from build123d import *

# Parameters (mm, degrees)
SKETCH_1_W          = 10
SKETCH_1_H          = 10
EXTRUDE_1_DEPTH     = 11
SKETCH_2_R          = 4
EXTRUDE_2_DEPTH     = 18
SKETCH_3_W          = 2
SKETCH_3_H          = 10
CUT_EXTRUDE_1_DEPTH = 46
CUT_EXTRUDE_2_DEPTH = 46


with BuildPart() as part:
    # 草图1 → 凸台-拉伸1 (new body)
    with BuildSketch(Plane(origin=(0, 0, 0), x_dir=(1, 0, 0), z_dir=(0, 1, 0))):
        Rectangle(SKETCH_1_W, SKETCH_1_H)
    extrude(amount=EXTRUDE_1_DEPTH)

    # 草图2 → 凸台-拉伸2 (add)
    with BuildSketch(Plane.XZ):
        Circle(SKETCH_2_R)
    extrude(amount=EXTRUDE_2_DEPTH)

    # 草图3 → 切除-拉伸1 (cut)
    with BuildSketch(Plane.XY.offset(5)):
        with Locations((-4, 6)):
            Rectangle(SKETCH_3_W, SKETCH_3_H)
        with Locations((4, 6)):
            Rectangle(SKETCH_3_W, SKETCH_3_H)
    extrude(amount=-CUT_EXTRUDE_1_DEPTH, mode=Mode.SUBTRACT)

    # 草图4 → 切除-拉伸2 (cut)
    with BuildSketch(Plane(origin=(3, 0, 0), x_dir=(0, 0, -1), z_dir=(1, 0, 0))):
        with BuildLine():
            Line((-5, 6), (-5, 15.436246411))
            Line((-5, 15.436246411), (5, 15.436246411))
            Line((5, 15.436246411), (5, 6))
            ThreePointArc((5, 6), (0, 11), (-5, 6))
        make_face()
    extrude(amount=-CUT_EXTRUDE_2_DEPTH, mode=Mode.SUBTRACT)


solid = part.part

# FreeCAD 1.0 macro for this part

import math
import FreeCAD as App
import Part
import Sketcher
from FreeCAD import Vector
Q = App.Units.Quantity


def add_polygon(sketch, points):
    """Adds a closed chain of lines whose ends are joined by coincident constraints."""
    first, n = sketch.GeometryCount, len(points)
    for a, b in zip(points, points[1:] + points[:1]):
        sketch.addGeometry(Part.LineSegment(App.Vector(*a, 0), App.Vector(*b, 0)), False)
    for i in range(n):
        sketch.addConstraint(Sketcher.Constraint("Coincident", first + i, 2, first + (i + 1) % n, 1))

doc = App.newDocument("Part")
params = doc.addObject("Spreadsheet::Sheet", "Params")
for row, (alias, value) in enumerate([
    ("sketch1_width", "10 mm"),
    ("pad1_length", "11 mm"),
    ("sketch2_diameter", "8 mm"),
    ("pad2_length", "18 mm"),
    ("sketch3_width", "2 mm"),
    ("sketch3_height", "10 mm"),
    ("pocket1_length", "46 mm"),
    ("sketch4_radius", "5 mm"),
    ("pocket2_length", "46 mm"),
], start=1):
    params.set(f"A{row}", alias)
    params.set(f"B{row}", "=" + value)
    params.setAlias(f"B{row}", alias)

body = doc.addObject("PartDesign::Body", "Body")

# Sketch on XZ plane
sketch1 = body.newObject("Sketcher::SketchObject", "Sketch")
sketch1.AttachmentSupport = (doc.getObject("XZ_Plane"), [""])
sketch1.MapMode = "FlatFace"
add_polygon(sketch1, [(-5, -5), (-5, 5), (5, 5), (5, -5)])  # lines 0-3
sketch1.addConstraint([
    Sketcher.Constraint("Vertical", 0),
    Sketcher.Constraint("Horizontal", 1),
    Sketcher.Constraint("Vertical", 2),
    Sketcher.Constraint("Horizontal", 3),
    Sketcher.Constraint("Symmetric", 0, 2, 2, 2, -1, 1),
    Sketcher.Constraint("Equal", 3, 0),
    Sketcher.Constraint("DistanceX", 1, 1, 1, 2, Q("10 mm")),
])
sketch1.setExpression("Constraints[10]", "Params.sketch1_width")
pad1 = body.newObject("PartDesign::Pad", "Pad")
pad1.Profile = sketch1
pad1.setExpression("Length", "Params.pad1_length")
pad1.Reversed = True

# Sketch on XZ plane
sketch2 = body.newObject("Sketcher::SketchObject", "Sketch001")
sketch2.AttachmentSupport = (doc.getObject("XZ_Plane"), [""])
sketch2.MapMode = "FlatFace"
sketch2.addGeometry(Part.Circle(Vector(0, 0, 0), Vector(0, 0, 1), 4), False)
sketch2.addConstraint([
    Sketcher.Constraint("Coincident", 0, 3, -1, 1),
    Sketcher.Constraint("Diameter", 0, Q("8 mm")),
])
sketch2.setExpression("Constraints[1]", "Params.sketch2_diameter")
pad2 = body.newObject("PartDesign::Pad", "Pad001")
pad2.Profile = sketch2
pad2.setExpression("Length", "Params.pad2_length")

# Sketch on XY plane
sketch3 = body.newObject("Sketcher::SketchObject", "Sketch002")
sketch3.AttachmentSupport = (doc.getObject("XY_Plane"), [""])
sketch3.MapMode = "FlatFace"
sketch3.AttachmentOffset = App.Placement(Vector(0, 0, 5), App.Rotation())
add_polygon(sketch3, [(-5, 11), (-5, 1), (-3, 1), (-3, 11)])  # lines 0-3
add_polygon(sketch3, [(3, 11), (3, 1), (5, 1), (5, 11)])  # lines 4-7
sketch3.addConstraint([
    Sketcher.Constraint("Vertical", 0),
    Sketcher.Constraint("Horizontal", 1),
    Sketcher.Constraint("Vertical", 2),
    Sketcher.Constraint("Horizontal", 3),
    Sketcher.Constraint("Vertical", 4),
    Sketcher.Constraint("Horizontal", 5),
    Sketcher.Constraint("Vertical", 6),
    Sketcher.Constraint("Horizontal", 7),
    Sketcher.Constraint("Symmetric", 1, 2, 4, 2, -2),
    Sketcher.Constraint("Symmetric", 3, 2, 6, 2, -2),
    Sketcher.Constraint("DistanceX", 1, 1, 1, 2, Q("2 mm")),
    Sketcher.Constraint("DistanceY", 0, 2, 0, 1, Q("10 mm")),
    Sketcher.Constraint("DistanceX", 0, 2, -1, 1, Q("5 mm")),
    Sketcher.Constraint("DistanceY", -1, 1, 0, 2, Q("1 mm")),
])
sketch3.setExpression("Constraints[18]", "Params.sketch3_width")
sketch3.setExpression("Constraints[19]", "Params.sketch3_height")
pocket1 = body.newObject("PartDesign::Pocket", "Pocket")
pocket1.Profile = sketch3
pocket1.setExpression("Length", "Params.pocket1_length")

# Sketch on YZ plane
sketch4 = body.newObject("Sketcher::SketchObject", "Sketch003")
sketch4.AttachmentSupport = (doc.getObject("YZ_Plane"), [""])
sketch4.MapMode = "FlatFace"
sketch4.AttachmentOffset = App.Placement(Vector(0, 0, 3), App.Rotation())
sketch4.addGeometry([
    Part.LineSegment(Vector(15, 5, 0), Vector(6, 5, 0)),
    Part.ArcOfCircle(Part.Circle(Vector(6, 0, 0), Vector(0, 0, 1), 5), math.radians(-90), math.radians(90)),
    Part.LineSegment(Vector(6, -5, 0), Vector(15, -5, 0)),
    Part.LineSegment(Vector(15, -5, 0), Vector(15, 5, 0)),
], False)
sketch4.addConstraint([
    Sketcher.Constraint("Tangent", 0, 2, 1, 2),
    Sketcher.Constraint("Tangent", 1, 1, 2, 1),
    Sketcher.Constraint("Coincident", 2, 2, 3, 1),
    Sketcher.Constraint("Coincident", 3, 2, 0, 1),
    Sketcher.Constraint("Horizontal", 0),
    Sketcher.Constraint("Horizontal", 2),
    Sketcher.Constraint("Vertical", 3),
    Sketcher.Constraint("PointOnObject", 1, 3, -1),
    Sketcher.Constraint("Radius", 1, Q("5 mm")),
    Sketcher.Constraint("DistanceX", -1, 1, 1, 3, Q("6 mm")),
    Sketcher.Constraint("DistanceX", 0, 2, 0, 1, Q("9.436246 mm")),
])
sketch4.setExpression("Constraints[8]", "Params.sketch4_radius")
pocket2 = body.newObject("PartDesign::Pocket", "Pocket001")
pocket2.Profile = sketch4
pocket2.setExpression("Length", "Params.pocket2_length")

doc.recompute()
